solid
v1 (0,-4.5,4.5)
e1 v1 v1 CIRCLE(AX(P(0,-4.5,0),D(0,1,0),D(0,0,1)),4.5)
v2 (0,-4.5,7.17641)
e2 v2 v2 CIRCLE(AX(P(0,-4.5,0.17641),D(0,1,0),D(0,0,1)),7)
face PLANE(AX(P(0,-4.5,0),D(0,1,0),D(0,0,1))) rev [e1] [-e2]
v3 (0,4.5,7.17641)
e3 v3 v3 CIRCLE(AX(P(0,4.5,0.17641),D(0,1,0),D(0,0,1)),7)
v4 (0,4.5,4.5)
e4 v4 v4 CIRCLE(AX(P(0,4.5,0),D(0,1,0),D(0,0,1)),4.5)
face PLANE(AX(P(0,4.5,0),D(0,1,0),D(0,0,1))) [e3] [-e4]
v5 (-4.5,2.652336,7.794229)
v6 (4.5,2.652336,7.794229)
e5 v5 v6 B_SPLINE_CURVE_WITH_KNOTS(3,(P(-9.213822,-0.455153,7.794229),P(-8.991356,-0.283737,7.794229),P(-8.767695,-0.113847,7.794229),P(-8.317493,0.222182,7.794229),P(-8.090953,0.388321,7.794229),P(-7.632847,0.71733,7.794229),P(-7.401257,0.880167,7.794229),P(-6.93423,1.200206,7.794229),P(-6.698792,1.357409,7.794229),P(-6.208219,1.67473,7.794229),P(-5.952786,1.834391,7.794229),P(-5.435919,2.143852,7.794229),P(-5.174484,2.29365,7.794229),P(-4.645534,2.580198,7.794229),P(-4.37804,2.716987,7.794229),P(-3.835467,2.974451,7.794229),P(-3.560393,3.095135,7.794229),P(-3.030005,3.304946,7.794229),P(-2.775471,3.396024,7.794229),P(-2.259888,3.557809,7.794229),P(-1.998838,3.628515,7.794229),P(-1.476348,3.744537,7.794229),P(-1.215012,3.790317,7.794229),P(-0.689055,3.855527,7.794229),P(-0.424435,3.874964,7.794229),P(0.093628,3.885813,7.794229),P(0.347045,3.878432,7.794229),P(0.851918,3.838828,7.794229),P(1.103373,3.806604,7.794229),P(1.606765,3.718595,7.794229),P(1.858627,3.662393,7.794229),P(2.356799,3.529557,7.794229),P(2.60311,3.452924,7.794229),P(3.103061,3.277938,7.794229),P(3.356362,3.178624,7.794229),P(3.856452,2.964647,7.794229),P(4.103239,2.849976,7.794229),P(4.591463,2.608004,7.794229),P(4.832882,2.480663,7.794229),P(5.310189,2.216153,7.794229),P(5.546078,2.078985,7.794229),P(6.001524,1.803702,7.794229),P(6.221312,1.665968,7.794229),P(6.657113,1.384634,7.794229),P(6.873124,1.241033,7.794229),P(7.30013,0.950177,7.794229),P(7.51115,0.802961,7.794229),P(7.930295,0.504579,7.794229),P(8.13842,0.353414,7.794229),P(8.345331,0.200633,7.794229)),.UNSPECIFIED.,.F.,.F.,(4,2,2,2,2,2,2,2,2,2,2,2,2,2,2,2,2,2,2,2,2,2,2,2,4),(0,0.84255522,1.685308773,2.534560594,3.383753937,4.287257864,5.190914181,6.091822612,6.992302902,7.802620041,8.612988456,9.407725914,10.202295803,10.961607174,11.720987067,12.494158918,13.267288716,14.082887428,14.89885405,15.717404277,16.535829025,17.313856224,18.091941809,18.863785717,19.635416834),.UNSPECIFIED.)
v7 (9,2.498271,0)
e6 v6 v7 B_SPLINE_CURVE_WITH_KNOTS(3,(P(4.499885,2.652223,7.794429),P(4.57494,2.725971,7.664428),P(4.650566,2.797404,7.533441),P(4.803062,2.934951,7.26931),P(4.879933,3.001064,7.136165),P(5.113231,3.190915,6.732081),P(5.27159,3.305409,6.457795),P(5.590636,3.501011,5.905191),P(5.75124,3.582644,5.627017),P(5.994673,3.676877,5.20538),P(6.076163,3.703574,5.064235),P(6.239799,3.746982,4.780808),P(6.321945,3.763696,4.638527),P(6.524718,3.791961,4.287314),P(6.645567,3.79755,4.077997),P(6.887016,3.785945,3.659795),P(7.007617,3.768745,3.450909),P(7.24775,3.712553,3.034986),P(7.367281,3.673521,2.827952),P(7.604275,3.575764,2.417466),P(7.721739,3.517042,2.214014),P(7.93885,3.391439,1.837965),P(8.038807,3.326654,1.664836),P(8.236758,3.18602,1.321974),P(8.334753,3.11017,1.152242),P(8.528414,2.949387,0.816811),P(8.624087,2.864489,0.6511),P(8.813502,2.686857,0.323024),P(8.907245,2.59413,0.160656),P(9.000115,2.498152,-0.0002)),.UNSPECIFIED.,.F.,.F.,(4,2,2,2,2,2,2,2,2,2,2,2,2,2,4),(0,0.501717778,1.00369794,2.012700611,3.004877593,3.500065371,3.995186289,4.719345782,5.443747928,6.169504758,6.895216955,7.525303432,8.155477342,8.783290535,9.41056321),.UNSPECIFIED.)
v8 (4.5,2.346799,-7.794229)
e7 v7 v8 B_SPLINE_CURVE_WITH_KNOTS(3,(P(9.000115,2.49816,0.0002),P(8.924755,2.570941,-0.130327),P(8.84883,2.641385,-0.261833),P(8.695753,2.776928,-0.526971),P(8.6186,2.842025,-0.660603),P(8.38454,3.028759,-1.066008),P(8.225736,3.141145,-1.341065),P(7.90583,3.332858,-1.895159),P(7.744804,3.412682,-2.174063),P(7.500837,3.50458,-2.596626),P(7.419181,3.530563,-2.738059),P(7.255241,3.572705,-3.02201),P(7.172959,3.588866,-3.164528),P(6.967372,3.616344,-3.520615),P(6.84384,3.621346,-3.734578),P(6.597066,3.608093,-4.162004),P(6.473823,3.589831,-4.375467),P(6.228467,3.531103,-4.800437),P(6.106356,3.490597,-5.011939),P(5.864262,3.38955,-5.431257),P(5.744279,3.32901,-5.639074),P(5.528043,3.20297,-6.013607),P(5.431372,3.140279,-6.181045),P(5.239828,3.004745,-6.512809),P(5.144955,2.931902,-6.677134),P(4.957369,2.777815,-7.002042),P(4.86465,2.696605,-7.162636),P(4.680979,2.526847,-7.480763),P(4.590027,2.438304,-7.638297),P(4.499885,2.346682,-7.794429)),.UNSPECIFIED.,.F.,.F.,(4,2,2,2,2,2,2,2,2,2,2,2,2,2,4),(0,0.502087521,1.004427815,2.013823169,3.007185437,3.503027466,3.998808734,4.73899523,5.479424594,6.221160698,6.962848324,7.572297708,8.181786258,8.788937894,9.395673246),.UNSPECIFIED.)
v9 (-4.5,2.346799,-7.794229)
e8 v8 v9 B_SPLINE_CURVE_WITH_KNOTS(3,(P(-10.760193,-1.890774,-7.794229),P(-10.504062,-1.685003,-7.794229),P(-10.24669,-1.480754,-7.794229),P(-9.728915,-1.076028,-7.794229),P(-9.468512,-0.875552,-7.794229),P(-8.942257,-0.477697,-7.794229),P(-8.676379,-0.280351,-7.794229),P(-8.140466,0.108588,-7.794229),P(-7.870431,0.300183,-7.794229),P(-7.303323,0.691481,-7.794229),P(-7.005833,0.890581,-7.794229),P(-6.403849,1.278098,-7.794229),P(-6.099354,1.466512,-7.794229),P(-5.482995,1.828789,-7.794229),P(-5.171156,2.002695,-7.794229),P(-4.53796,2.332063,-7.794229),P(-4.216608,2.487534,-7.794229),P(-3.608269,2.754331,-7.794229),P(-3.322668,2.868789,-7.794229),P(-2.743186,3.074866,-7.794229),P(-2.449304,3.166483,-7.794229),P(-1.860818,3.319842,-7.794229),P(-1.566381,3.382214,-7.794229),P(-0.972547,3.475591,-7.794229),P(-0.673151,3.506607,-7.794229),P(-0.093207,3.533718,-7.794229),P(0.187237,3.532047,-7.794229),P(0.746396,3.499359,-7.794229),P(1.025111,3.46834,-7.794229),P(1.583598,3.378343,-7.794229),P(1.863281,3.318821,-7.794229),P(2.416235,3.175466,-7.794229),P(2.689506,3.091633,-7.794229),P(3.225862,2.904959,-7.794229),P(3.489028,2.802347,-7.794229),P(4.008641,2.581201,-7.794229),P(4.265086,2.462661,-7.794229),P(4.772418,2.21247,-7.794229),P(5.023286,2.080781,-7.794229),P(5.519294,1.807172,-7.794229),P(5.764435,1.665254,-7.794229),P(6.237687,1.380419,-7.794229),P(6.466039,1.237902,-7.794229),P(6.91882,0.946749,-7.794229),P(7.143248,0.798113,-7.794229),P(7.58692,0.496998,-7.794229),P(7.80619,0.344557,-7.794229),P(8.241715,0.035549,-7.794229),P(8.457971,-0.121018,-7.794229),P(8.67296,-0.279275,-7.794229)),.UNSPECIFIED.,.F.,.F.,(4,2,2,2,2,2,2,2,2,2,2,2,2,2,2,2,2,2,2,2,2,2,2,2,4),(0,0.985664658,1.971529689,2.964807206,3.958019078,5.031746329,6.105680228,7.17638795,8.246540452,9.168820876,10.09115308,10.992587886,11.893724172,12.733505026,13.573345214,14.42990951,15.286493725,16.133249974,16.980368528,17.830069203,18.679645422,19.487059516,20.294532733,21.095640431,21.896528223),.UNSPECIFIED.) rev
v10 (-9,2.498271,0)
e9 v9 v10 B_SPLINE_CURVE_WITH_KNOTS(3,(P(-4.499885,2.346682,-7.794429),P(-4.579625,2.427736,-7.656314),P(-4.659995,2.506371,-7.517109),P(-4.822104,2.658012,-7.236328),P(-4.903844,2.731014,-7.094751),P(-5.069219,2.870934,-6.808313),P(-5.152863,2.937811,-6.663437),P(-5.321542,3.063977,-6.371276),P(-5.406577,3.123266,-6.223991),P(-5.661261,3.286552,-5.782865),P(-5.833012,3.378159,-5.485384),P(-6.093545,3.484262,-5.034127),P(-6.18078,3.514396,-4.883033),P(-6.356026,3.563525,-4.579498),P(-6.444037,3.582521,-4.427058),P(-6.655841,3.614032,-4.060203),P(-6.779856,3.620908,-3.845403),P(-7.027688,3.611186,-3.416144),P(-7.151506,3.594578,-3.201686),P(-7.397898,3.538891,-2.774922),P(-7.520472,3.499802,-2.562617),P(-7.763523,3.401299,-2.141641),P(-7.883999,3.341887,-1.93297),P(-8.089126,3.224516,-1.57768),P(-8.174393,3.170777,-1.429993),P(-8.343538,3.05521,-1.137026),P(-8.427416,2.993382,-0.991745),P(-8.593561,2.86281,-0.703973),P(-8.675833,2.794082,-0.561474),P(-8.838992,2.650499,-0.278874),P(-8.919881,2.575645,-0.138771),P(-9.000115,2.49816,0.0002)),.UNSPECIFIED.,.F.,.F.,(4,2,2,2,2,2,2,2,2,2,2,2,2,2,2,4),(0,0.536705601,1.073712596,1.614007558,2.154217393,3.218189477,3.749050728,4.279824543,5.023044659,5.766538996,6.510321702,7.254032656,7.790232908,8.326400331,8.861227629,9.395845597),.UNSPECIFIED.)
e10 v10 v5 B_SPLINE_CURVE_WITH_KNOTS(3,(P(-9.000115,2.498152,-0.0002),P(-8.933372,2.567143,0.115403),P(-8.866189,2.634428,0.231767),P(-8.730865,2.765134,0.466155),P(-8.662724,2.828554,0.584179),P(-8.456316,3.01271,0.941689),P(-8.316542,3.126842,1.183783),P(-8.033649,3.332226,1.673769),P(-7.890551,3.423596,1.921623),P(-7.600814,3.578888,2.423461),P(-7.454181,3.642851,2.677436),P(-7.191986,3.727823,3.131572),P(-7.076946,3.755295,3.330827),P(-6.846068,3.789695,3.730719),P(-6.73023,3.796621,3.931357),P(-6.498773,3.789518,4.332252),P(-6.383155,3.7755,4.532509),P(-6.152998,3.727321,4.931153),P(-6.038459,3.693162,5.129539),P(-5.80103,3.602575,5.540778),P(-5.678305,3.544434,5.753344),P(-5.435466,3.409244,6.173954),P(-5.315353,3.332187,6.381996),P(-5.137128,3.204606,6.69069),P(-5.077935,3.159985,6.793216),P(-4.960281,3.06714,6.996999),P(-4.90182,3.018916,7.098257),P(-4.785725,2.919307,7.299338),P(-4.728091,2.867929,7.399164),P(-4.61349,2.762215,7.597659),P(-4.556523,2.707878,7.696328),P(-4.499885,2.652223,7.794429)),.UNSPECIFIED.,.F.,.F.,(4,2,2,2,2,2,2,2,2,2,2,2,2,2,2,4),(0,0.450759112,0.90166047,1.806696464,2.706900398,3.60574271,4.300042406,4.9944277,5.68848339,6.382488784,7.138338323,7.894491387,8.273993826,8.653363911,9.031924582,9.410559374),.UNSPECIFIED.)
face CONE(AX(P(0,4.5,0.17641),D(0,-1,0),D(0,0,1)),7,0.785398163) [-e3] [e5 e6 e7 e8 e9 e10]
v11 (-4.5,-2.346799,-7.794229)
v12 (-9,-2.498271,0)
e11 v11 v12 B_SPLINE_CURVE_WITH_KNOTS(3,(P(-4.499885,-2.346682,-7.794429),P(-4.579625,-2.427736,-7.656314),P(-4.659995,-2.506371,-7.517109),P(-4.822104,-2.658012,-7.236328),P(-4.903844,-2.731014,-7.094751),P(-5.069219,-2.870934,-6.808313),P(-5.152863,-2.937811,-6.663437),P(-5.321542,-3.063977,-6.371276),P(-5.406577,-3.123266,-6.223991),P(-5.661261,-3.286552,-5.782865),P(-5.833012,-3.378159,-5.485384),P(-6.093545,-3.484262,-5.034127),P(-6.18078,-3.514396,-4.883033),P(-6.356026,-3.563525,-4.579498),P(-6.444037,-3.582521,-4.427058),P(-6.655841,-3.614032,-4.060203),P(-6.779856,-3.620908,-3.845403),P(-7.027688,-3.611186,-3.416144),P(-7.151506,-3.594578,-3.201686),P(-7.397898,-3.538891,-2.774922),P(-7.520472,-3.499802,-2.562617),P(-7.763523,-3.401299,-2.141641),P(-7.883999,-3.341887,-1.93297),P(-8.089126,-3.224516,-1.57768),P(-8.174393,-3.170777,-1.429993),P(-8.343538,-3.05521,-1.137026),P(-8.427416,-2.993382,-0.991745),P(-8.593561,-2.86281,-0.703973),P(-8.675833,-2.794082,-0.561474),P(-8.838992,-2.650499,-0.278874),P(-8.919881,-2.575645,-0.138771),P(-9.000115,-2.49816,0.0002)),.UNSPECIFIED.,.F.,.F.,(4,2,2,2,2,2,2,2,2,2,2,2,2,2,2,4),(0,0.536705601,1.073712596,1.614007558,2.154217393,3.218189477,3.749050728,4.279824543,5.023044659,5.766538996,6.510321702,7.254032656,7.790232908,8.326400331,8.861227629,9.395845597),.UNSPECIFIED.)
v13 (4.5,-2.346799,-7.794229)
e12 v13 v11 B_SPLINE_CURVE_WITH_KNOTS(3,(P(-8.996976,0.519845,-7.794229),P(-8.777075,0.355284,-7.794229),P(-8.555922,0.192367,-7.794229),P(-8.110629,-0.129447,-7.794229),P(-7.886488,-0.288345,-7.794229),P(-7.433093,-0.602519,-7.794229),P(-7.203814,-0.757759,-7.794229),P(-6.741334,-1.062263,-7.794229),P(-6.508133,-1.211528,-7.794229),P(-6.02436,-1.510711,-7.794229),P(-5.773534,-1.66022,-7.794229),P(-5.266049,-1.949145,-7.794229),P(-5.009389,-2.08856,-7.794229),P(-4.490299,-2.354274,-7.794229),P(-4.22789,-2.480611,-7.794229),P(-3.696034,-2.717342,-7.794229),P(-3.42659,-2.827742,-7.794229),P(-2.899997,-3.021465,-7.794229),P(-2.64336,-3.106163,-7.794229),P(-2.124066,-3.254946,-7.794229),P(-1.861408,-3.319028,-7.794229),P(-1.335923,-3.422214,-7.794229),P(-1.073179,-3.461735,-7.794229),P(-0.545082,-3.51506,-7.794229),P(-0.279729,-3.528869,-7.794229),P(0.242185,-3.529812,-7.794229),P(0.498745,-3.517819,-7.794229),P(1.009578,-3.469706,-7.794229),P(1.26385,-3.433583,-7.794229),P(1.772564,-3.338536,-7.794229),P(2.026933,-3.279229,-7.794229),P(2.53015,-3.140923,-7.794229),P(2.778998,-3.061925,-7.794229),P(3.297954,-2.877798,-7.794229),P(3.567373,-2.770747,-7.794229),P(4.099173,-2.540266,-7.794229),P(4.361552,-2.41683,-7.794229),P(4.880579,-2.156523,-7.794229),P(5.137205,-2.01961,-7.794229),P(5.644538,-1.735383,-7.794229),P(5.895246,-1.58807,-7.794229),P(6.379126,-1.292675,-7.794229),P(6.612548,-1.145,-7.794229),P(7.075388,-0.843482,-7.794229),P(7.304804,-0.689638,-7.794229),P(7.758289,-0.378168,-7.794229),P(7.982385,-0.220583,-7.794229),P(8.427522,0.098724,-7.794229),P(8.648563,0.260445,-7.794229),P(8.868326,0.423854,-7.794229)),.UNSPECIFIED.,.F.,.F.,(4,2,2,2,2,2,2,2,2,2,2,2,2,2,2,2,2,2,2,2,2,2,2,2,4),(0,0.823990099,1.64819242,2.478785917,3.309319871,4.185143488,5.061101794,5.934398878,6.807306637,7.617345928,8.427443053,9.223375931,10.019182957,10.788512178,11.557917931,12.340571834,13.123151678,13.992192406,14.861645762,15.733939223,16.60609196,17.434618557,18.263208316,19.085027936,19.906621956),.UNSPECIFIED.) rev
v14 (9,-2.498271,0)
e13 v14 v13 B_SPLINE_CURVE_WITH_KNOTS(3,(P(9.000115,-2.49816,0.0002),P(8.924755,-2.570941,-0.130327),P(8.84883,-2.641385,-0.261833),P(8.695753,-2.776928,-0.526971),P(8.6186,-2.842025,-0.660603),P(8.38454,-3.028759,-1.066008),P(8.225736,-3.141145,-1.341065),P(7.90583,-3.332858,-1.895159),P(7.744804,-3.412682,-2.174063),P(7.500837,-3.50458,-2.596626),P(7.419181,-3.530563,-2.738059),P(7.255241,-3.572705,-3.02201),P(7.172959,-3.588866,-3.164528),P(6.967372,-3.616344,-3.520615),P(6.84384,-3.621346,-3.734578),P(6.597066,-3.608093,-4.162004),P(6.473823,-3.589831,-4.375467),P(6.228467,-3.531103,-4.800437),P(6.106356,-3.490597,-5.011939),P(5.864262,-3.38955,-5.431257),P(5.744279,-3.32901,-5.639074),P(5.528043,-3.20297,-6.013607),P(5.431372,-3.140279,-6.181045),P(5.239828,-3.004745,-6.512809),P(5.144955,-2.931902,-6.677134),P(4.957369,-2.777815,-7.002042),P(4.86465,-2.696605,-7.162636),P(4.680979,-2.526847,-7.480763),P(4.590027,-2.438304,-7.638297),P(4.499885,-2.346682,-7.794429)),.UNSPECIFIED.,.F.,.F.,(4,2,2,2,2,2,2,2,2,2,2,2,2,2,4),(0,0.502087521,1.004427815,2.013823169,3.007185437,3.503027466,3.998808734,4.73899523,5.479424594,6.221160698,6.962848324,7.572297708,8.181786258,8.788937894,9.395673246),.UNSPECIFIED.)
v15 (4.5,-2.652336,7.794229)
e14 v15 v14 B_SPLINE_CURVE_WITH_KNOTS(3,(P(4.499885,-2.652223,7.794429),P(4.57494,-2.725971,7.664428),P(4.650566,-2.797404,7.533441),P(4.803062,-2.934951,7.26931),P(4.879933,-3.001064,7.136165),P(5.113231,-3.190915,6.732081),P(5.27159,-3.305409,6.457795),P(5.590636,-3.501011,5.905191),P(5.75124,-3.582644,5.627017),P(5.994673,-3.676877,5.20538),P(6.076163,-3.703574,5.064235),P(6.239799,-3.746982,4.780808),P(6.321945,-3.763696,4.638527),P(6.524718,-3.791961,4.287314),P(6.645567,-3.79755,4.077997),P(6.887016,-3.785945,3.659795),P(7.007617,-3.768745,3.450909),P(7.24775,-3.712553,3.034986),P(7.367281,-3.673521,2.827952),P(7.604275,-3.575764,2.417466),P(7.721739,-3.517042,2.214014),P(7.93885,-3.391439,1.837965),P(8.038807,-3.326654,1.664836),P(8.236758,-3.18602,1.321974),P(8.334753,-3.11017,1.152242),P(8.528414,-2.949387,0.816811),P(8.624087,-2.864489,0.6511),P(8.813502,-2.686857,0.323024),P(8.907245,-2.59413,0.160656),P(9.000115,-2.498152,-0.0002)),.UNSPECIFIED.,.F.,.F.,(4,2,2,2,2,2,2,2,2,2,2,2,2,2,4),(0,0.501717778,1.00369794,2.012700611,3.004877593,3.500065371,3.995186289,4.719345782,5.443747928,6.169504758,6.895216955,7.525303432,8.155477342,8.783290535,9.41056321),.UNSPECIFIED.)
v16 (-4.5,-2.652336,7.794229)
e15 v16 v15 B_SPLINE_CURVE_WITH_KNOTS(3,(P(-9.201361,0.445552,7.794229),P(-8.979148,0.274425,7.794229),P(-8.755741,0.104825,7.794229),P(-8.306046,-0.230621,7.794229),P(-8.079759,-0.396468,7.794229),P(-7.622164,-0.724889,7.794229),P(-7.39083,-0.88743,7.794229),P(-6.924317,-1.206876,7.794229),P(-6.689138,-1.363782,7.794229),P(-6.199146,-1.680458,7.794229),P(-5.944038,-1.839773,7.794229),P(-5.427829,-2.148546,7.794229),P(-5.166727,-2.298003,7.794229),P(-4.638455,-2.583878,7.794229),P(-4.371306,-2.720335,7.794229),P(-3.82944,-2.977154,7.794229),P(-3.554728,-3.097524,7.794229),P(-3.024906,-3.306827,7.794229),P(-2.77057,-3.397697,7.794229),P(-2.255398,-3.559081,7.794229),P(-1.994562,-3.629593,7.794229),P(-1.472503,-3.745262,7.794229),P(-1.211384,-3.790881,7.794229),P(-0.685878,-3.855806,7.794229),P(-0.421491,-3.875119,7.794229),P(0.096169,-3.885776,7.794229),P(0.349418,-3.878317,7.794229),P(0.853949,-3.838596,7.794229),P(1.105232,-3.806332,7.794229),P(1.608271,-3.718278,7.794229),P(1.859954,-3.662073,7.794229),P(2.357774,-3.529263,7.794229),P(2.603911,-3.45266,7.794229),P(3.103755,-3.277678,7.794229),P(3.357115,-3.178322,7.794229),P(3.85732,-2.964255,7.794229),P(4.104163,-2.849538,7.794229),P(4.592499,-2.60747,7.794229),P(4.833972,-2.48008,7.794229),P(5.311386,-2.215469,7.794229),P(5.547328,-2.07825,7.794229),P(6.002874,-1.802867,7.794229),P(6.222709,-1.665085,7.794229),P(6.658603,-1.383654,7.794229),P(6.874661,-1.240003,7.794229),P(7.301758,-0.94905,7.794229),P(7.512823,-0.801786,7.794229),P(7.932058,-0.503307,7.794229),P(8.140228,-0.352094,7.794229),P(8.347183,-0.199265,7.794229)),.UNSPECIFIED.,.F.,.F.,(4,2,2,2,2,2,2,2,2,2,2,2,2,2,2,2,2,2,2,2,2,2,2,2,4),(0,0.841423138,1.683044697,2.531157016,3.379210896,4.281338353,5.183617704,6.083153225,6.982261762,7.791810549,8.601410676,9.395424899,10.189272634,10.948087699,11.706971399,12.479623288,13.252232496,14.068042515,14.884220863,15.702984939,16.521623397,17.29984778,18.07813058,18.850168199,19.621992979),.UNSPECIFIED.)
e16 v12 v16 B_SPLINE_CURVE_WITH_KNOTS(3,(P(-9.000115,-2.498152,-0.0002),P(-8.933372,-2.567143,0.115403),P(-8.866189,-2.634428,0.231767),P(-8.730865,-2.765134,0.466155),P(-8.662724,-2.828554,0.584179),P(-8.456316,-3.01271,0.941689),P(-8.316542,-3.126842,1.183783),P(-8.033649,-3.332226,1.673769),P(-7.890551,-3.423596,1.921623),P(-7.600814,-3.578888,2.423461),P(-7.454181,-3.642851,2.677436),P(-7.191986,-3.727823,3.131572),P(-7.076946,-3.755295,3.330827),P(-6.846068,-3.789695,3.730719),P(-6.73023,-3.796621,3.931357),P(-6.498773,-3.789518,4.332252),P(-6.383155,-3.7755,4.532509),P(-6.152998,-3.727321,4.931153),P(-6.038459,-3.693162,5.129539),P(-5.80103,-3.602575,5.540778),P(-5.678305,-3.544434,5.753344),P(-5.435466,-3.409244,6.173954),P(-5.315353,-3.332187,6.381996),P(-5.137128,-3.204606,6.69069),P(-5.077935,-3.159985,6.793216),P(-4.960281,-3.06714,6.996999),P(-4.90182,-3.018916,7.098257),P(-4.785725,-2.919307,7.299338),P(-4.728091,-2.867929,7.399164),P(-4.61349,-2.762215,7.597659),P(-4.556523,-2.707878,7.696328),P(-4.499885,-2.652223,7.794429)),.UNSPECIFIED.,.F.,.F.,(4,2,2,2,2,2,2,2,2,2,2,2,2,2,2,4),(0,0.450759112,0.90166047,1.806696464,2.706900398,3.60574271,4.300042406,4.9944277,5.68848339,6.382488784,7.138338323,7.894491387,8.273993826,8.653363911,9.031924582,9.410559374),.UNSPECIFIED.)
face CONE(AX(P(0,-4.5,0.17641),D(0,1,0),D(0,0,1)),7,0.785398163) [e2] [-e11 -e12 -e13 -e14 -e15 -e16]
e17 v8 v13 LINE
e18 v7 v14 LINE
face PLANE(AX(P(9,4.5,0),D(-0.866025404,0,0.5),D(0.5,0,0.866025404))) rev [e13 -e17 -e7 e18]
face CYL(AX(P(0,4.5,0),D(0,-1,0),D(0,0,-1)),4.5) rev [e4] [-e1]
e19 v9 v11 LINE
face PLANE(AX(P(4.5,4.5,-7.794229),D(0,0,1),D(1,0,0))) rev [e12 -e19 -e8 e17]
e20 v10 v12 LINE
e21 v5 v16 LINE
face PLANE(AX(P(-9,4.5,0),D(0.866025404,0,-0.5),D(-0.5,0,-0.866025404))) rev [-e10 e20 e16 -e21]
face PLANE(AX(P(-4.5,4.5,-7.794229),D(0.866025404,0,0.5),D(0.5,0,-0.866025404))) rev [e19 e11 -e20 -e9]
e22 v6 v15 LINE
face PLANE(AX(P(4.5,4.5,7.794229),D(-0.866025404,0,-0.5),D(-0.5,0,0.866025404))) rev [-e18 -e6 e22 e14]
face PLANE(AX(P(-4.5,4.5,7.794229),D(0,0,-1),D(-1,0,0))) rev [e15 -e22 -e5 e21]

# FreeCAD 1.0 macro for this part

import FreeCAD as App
import Part
import Sketcher
from FreeCAD import Vector
Q = App.Units.Quantity

doc = App.newDocument("Part")
body = doc.addObject("PartDesign::Body", "Body")

# Sketch on XZ plane
sketch1 = body.newObject("Sketcher::SketchObject", "Sketch")
sketch1.AttachmentSupport = (doc.getObject("XZ_Plane"), [""])
sketch1.MapMode = "FlatFace"
sketch1.addGeometry(Part.LineSegment(Vector(-4.5, 7.8, 0), Vector(4.5, 7.8, 0)), False)
sketch1.addGeometry(Part.LineSegment(Vector(4.5, 7.8, 0), Vector(9, 0, 0)), False)
sketch1.addGeometry(Part.LineSegment(Vector(9, 0, 0), Vector(4.5, -7.8, 0)), False)
sketch1.addGeometry(Part.LineSegment(Vector(4.5, -7.8, 0), Vector(-4.5, -7.8, 0)), False)
sketch1.addGeometry(Part.LineSegment(Vector(-4.5, -7.8, 0), Vector(-9, 0, 0)), False)
sketch1.addGeometry(Part.LineSegment(Vector(-9, 0, 0), Vector(-4.5, 7.8, 0)), False)
sketch1.addGeometry(Part.Circle(Vector(0, 0, 0), Vector(0, 0, 1), 4.5), False)
sketch1.addConstraint(Sketcher.Constraint("Coincident", 0, 2, 1, 1))
sketch1.addConstraint(Sketcher.Constraint("Coincident", 1, 2, 2, 1))
sketch1.addConstraint(Sketcher.Constraint("Coincident", 2, 2, 3, 1))
sketch1.addConstraint(Sketcher.Constraint("Coincident", 3, 2, 4, 1))
sketch1.addConstraint(Sketcher.Constraint("Coincident", 4, 2, 5, 1))
sketch1.addConstraint(Sketcher.Constraint("Coincident", 5, 2, 0, 1))
sketch1.addConstraint(Sketcher.Constraint("Horizontal", 0))
sketch1.addConstraint(Sketcher.Constraint("Horizontal", 3))
sketch1.addConstraint(Sketcher.Constraint("Coincident", 6, 3, -1, 1))
sketch1.addConstraint(Sketcher.Constraint("Symmetric", 0, 2, 3, 2, -1, 1))
sketch1.addConstraint(Sketcher.Constraint("Symmetric", 1, 2, 4, 2, -1, 1))
sketch1.addConstraint(Sketcher.Constraint("PointOnObject", 1, 2, -1))
sketch1.addConstraint(Sketcher.Constraint("Parallel", 2, 5))
sketch1.addConstraint(Sketcher.Constraint("Vertical", 0, 2, 2, 2))
sketch1.addConstraint(Sketcher.Constraint("Diameter", 6, 9.0))
sketch1.addConstraint(Sketcher.Constraint("DistanceX", 0, 1, 0, 2, 9.0))
sketch1.addConstraint(Sketcher.Constraint("Angle", 1, Q("-60 deg")))
sketch1.addConstraint(Sketcher.Constraint("Distance", 1, 9.0))
pad1 = body.newObject("PartDesign::Pad", "Pad")
pad1.Profile = sketch1
pad1.Length = 9
pad1.Midplane = True

# Sketch on XZ plane
sketch2 = body.newObject("Sketcher::SketchObject", "Sketch001")
sketch2.AttachmentSupport = (doc.getObject("XZ_Plane"), [""])
sketch2.MapMode = "FlatFace"
sketch2.AttachmentOffset = App.Placement(Vector(0, 0, -4.5), App.Rotation())
sketch2.addGeometry(Part.LineSegment(Vector(-22, -20, 0), Vector(-22, 20, 0)), False)
sketch2.addGeometry(Part.LineSegment(Vector(-22, 20, 0), Vector(22, 20, 0)), False)
sketch2.addGeometry(Part.LineSegment(Vector(22, 20, 0), Vector(22, -20, 0)), False)
sketch2.addGeometry(Part.LineSegment(Vector(22, -20, 0), Vector(-22, -20, 0)), False)
sketch2.addGeometry(Part.Circle(Vector(0, 0, 0), Vector(0, 0, 1), 7), False)
sketch2.addConstraint(Sketcher.Constraint("Coincident", 0, 2, 1, 1))
sketch2.addConstraint(Sketcher.Constraint("Coincident", 1, 2, 2, 1))
sketch2.addConstraint(Sketcher.Constraint("Coincident", 2, 2, 3, 1))
sketch2.addConstraint(Sketcher.Constraint("Coincident", 3, 2, 0, 1))
sketch2.addConstraint(Sketcher.Constraint("Vertical", 0))
sketch2.addConstraint(Sketcher.Constraint("Horizontal", 1))
sketch2.addConstraint(Sketcher.Constraint("Vertical", 2))
sketch2.addConstraint(Sketcher.Constraint("Horizontal", 3))
sketch2.addConstraint(Sketcher.Constraint("Symmetric", 0, 2, 2, 2, -1, 1))
sketch2.addConstraint(Sketcher.Constraint("PointOnObject", 4, 3, -2))
sketch2.addConstraint(Sketcher.Constraint("Diameter", 4, 14.0))
sketch2.addConstraint(Sketcher.Constraint("DistanceY", 0, 1, 0, 2, 40.68))
sketch2.addConstraint(Sketcher.Constraint("DistanceX", 1, 1, 1, 2, 43.092))
sketch2.addConstraint(Sketcher.Constraint("DistanceY", -1, 1, 4, 3, 0.17641))
pocket1 = body.newObject("PartDesign::Pocket", "Pocket")
pocket1.Profile = sketch2
pocket1.Length = 9
pocket1.Reversed = True
pocket1.TaperAngle = 45
doc.recompute()

mirrored = body.newObject("PartDesign::Mirrored", "Mirrored")
mirrored.Originals = [pocket1]
mirrored.MirrorPlane = (doc.getObject("XZ_Plane"), [""])
body.Tip = mirrored

doc.recompute()
